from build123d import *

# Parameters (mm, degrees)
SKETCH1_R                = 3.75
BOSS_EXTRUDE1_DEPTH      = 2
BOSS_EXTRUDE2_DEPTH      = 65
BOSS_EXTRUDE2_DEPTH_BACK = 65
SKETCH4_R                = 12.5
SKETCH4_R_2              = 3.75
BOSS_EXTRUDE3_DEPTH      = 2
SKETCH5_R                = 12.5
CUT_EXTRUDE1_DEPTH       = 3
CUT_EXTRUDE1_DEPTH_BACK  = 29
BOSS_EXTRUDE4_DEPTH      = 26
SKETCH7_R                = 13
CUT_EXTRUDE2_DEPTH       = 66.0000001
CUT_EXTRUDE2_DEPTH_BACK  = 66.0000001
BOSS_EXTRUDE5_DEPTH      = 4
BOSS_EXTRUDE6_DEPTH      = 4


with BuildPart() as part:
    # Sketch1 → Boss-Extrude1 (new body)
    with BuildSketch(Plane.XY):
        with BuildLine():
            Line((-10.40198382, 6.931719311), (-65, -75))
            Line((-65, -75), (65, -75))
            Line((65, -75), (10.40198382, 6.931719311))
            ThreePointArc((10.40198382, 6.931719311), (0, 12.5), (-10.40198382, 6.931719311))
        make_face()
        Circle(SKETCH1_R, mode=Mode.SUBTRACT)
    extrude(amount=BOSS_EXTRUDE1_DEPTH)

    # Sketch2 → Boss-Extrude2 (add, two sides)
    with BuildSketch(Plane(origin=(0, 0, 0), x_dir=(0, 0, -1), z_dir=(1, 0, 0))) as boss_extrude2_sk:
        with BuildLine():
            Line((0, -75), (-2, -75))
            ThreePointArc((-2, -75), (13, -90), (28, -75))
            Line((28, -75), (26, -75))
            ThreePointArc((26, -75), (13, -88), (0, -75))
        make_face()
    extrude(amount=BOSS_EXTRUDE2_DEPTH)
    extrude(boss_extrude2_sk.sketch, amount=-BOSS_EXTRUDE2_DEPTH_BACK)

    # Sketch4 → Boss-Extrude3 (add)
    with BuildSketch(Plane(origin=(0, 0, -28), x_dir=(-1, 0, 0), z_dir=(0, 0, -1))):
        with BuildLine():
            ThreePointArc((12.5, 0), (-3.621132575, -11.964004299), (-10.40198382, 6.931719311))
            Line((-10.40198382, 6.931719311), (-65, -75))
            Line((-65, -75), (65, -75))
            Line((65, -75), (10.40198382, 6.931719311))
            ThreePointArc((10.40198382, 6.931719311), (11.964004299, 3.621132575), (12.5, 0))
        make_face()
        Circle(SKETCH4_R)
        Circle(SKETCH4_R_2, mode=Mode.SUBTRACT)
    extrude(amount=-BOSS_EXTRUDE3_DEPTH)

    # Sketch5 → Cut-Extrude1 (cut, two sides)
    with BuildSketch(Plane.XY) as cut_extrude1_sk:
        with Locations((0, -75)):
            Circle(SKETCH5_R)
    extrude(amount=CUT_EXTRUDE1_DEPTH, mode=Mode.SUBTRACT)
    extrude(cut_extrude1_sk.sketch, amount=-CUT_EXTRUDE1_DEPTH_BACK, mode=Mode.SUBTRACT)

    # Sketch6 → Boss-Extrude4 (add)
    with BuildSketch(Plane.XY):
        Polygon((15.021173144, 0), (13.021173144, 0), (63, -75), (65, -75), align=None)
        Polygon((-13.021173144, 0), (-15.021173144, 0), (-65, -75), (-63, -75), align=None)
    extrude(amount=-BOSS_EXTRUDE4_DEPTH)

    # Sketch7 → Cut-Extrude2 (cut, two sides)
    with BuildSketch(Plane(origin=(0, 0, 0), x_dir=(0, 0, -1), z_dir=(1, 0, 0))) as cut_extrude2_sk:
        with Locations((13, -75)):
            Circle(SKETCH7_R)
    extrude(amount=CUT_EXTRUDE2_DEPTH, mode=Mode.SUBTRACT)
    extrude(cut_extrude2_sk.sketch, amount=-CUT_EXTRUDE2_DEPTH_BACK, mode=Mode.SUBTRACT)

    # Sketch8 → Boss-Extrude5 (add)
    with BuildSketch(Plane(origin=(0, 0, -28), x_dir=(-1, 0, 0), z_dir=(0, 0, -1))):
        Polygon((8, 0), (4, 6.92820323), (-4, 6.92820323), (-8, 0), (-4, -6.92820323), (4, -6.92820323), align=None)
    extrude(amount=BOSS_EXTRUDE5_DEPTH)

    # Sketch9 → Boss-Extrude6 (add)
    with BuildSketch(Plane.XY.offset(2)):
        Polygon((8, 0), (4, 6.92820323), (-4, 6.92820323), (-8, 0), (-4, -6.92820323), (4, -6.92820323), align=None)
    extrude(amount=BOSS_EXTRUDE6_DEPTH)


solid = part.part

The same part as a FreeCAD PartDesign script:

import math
import FreeCAD as App
import Part
import Sketcher
Q = App.Units.Quantity

doc = App.newDocument("Part")
body = doc.addObject("PartDesign::Body", "Body")

# Sketch on XY plane
sketch1 = body.newObject("Sketcher::SketchObject", "Sketch")
sketch1.AttachmentSupport = (doc.getObject("XY_Plane"), [""])
sketch1.MapMode = "FlatFace"
sketch1.addGeometry(Part.LineSegment(App.Vector(-10.4, 6.9, 0), App.Vector(-65, -75, 0)), False)
sketch1.addGeometry(Part.LineSegment(App.Vector(-65, -75, 0), App.Vector(65, -75, 0)), False)
sketch1.addGeometry(Part.LineSegment(App.Vector(65, -75, 0), App.Vector(10.4, 6.9, 0)), False)
sketch1.addGeometry(Part.ArcOfCircle(Part.Circle(App.Vector(0, 0, 0), App.Vector(0, 0, 1), 12.5), math.radians(34), math.radians(146)), False)
sketch1.addGeometry(Part.Circle(App.Vector(0, 0, 0), App.Vector(0, 0, 1), 3.8), False)
sketch1.addConstraint(Sketcher.Constraint("Coincident", 0, 2, 1, 1))
sketch1.addConstraint(Sketcher.Constraint("Coincident", 1, 2, 2, 1))
sketch1.addConstraint(Sketcher.Constraint("Tangent", 2, 2, 3, 1))
sketch1.addConstraint(Sketcher.Constraint("Tangent", 3, 2, 0, 1))
sketch1.addConstraint(Sketcher.Constraint("Horizontal", 1))
sketch1.addConstraint(Sketcher.Constraint("Coincident", 3, 3, -1, 1))
sketch1.addConstraint(Sketcher.Constraint("Coincident", 4, 3, -1, 1))
sketch1.addConstraint(Sketcher.Constraint("Horizontal", 2, 2, 3, 2))
sketch1.addConstraint(Sketcher.Constraint("Diameter", 4, 7.5))
sketch1.addConstraint(Sketcher.Constraint("Radius", 3, 12.5))
sketch1.addConstraint(Sketcher.Constraint("DistanceX", 1, 1, 1, 2, 130.0))
sketch1.addConstraint(Sketcher.Constraint("DistanceY", 0, 2, -1, 1, 75.0))
pad1 = body.newObject("PartDesign::Pad", "Pad")
pad1.Profile = sketch1
pad1.Length = 2

# Sketch on YZ plane
sketch2 = body.newObject("Sketcher::SketchObject", "Sketch001")
sketch2.AttachmentSupport = (doc.getObject("YZ_Plane"), [""])
sketch2.MapMode = "FlatFace"
sketch2.addGeometry(Part.LineSegment(App.Vector(-75, 0, 0), App.Vector(-75, 2, 0)), False)
sketch2.addGeometry(Part.ArcOfCircle(Part.Circle(App.Vector(-75, -13, 0), App.Vector(0, 0, 1), 15), math.radians(90), math.radians(270)), False)
sketch2.addGeometry(Part.LineSegment(App.Vector(-75, -28, 0), App.Vector(-75, -26, 0)), False)
sketch2.addGeometry(Part.ArcOfCircle(Part.Circle(App.Vector(-75, -13, 0), App.Vector(0, 0, 1), 13), math.radians(90), math.radians(270)), False)
sketch2.addConstraint(Sketcher.Constraint("Coincident", 0, 2, 1, 1))
sketch2.addConstraint(Sketcher.Constraint("Coincident", 1, 2, 2, 1))
sketch2.addConstraint(Sketcher.Constraint("Coincident", 2, 2, 3, 2))
sketch2.addConstraint(Sketcher.Constraint("Coincident", 3, 1, 0, 1))
sketch2.addConstraint(Sketcher.Constraint("Vertical", 0))
sketch2.addConstraint(Sketcher.Constraint("Vertical", 2))
sketch2.addConstraint(Sketcher.Constraint("Coincident", 3, 3, 1, 3))
sketch2.addConstraint(Sketcher.Constraint("PointOnObject", 3, 1, -1))
sketch2.addConstraint(Sketcher.Constraint("Vertical", 3, 3, 0, 2))
sketch2.addConstraint(Sketcher.Constraint("Vertical", 0, 2, 1, 2))
sketch2.addConstraint(Sketcher.Constraint("Radius", 1, 15.0))
sketch2.addConstraint(Sketcher.Constraint("Radius", 3, 13.0))
sketch2.addConstraint(Sketcher.Constraint("DistanceX", 1, 3, -1, 1, 75.0))
pad2 = body.newObject("PartDesign::Pad", "Pad001")
pad2.Profile = sketch2
pad2.Type = "TwoLengths"
pad2.Length = 65
pad2.Length2 = 65

# Sketch on XY plane
sketch3 = body.newObject("Sketcher::SketchObject", "Sketch002")
sketch3.AttachmentSupport = (doc.getObject("XY_Plane"), [""])
sketch3.MapMode = "FlatFace"
sketch3.AttachmentOffset = App.Placement(App.Vector(0, 0, -28), App.Rotation())
sketch3.addGeometry(Part.LineSegment(App.Vector(10.4, 6.9, 0), App.Vector(65, -75, 0)), False)
sketch3.addGeometry(Part.LineSegment(App.Vector(65, -75, 0), App.Vector(-65, -75, 0)), False)
sketch3.addGeometry(Part.LineSegment(App.Vector(-65, -75, 0), App.Vector(-10.4, 6.9, 0)), False)
sketch3.addGeometry(Part.ArcOfCircle(Part.Circle(App.Vector(0, 0, 0), App.Vector(0, 0, 1), 12.5), math.radians(34), math.radians(146)), False)
sketch3.addGeometry(Part.Circle(App.Vector(0, 0, 0), App.Vector(0, 0, 1), 3.8), False)
sketch3.addConstraint(Sketcher.Constraint("Coincident", 0, 2, 1, 1))
sketch3.addConstraint(Sketcher.Constraint("Coincident", 1, 2, 2, 1))
sketch3.addConstraint(Sketcher.Constraint("Tangent", 2, 2, 3, 2))
sketch3.addConstraint(Sketcher.Constraint("Tangent", 3, 1, 0, 1))
sketch3.addConstraint(Sketcher.Constraint("Horizontal", 1))
sketch3.addConstraint(Sketcher.Constraint("Coincident", 3, 3, -1, 1))
sketch3.addConstraint(Sketcher.Constraint("Coincident", 4, 3, -1, 1))
sketch3.addConstraint(Sketcher.Constraint("Horizontal", 2, 2, 3, 1))
sketch3.addConstraint(Sketcher.Constraint("Diameter", 4, 7.5))
sketch3.addConstraint(Sketcher.Constraint("Radius", 3, 12.5))
sketch3.addConstraint(Sketcher.Constraint("DistanceX", 1, 2, 1, 1, 130.0))
sketch3.addConstraint(Sketcher.Constraint("DistanceY", 0, 2, -1, 1, 75.0))
pad3 = body.newObject("PartDesign::Pad", "Pad002")
pad3.Profile = sketch3
pad3.Length = 2

# Sketch on XY plane
sketch4 = body.newObject("Sketcher::SketchObject", "Sketch003")
sketch4.AttachmentSupport = (doc.getObject("XY_Plane"), [""])
sketch4.MapMode = "FlatFace"
sketch4.addGeometry(Part.Circle(App.Vector(0, -75, 0), App.Vector(0, 0, 1), 12), False)
sketch4.addConstraint(Sketcher.Constraint("PointOnObject", 0, 3, -2))
sketch4.addConstraint(Sketcher.Constraint("Diameter", 0, 25.0))
sketch4.addConstraint(Sketcher.Constraint("DistanceY", 0, 3, -1, 1, 75.0))
pocket1 = body.newObject("PartDesign::Pocket", "Pocket")
pocket1.Profile = sketch4
pocket1.Type = "ThroughAll"
pocket1.Midplane = True

# Sketch on XY plane
sketch5 = body.newObject("Sketcher::SketchObject", "Sketch004")
sketch5.AttachmentSupport = (doc.getObject("XY_Plane"), [""])
sketch5.MapMode = "FlatFace"
sketch5.addGeometry(Part.LineSegment(App.Vector(15, 0, 0), App.Vector(13, 0, 0)), False)
sketch5.addGeometry(Part.LineSegment(App.Vector(13, 0, 0), App.Vector(63, -75, 0)), False)
sketch5.addGeometry(Part.LineSegment(App.Vector(63, -75, 0), App.Vector(65, -75, 0)), False)
sketch5.addGeometry(Part.LineSegment(App.Vector(65, -75, 0), App.Vector(15, 0, 0)), False)
sketch5.addGeometry(Part.LineSegment(App.Vector(-13, 0, 0), App.Vector(-15, 0, 0)), False)
sketch5.addGeometry(Part.LineSegment(App.Vector(-15, 0, 0), App.Vector(-65, -75, 0)), False)
sketch5.addGeometry(Part.LineSegment(App.Vector(-65, -75, 0), App.Vector(-63, -75, 0)), False)
sketch5.addGeometry(Part.LineSegment(App.Vector(-63, -75, 0), App.Vector(-13, 0, 0)), False)
sketch5.addConstraint(Sketcher.Constraint("Coincident", 0, 2, 1, 1))
sketch5.addConstraint(Sketcher.Constraint("Coincident", 1, 2, 2, 1))
sketch5.addConstraint(Sketcher.Constraint("Coincident", 2, 2, 3, 1))
sketch5.addConstraint(Sketcher.Constraint("Coincident", 3, 2, 0, 1))
sketch5.addConstraint(Sketcher.Constraint("Coincident", 4, 2, 5, 1))
sketch5.addConstraint(Sketcher.Constraint("Coincident", 5, 2, 6, 1))
sketch5.addConstraint(Sketcher.Constraint("Coincident", 6, 2, 7, 1))
sketch5.addConstraint(Sketcher.Constraint("Coincident", 7, 2, 4, 1))
sketch5.addConstraint(Sketcher.Constraint("Horizontal", 0))
sketch5.addConstraint(Sketcher.Constraint("Horizontal", 2))
sketch5.addConstraint(Sketcher.Constraint("Horizontal", 4))
sketch5.addConstraint(Sketcher.Constraint("Horizontal", 6))
sketch5.addConstraint(Sketcher.Constraint("Symmetric", 3, 2, 4, 2, -1, 1))
sketch5.addConstraint(Sketcher.Constraint("Symmetric", 2, 2, 5, 2, -2))
sketch5.addConstraint(Sketcher.Constraint("Symmetric", 0, 2, 7, 2, -2))
sketch5.addConstraint(Sketcher.Constraint("Parallel", 1, 3))
sketch5.addConstraint(Sketcher.Constraint("Parallel", 5, 7))
sketch5.addConstraint(Sketcher.Constraint("DistanceX", 0, 2, 0, 1, 2.0))
sketch5.addConstraint(Sketcher.Constraint("DistanceX", -1, 1, 1, 2, 63.0))
sketch5.addConstraint(Sketcher.Constraint("DistanceY", 1, 2, -1, 1, 75.0))
sketch5.addConstraint(Sketcher.Constraint("Distance", 1, 90.127039))
pad4 = body.newObject("PartDesign::Pad", "Pad003")
pad4.Profile = sketch5
pad4.Length = 26
pad4.Reversed = True

# Sketch on YZ plane
sketch6 = body.newObject("Sketcher::SketchObject", "Sketch005")
sketch6.AttachmentSupport = (doc.getObject("YZ_Plane"), [""])
sketch6.MapMode = "FlatFace"
sketch6.addGeometry(Part.Circle(App.Vector(-75, -13, 0), App.Vector(0, 0, 1), 13), False)
sketch6.addConstraint(Sketcher.Constraint("Diameter", 0, 26.0))
sketch6.addConstraint(Sketcher.Constraint("DistanceX", 0, 3, -1, 1, 75.0))
sketch6.addConstraint(Sketcher.Constraint("DistanceY", 0, 3, -1, 1, 13.0))
pocket2 = body.newObject("PartDesign::Pocket", "Pocket001")
pocket2.Profile = sketch6
pocket2.Type = "ThroughAll"
pocket2.Midplane = True

# Sketch on XY plane
sketch7 = body.newObject("Sketcher::SketchObject", "Sketch006")
sketch7.AttachmentSupport = (doc.getObject("XY_Plane"), [""])
sketch7.MapMode = "FlatFace"
sketch7.AttachmentOffset = App.Placement(App.Vector(0, 0, -28), App.Rotation())
sketch7.addGeometry(Part.LineSegment(App.Vector(-8, 0, 0), App.Vector(-4, 7, 0)), False)
sketch7.addGeometry(Part.LineSegment(App.Vector(-4, 7, 0), App.Vector(4, 7, 0)), False)
sketch7.addGeometry(Part.LineSegment(App.Vector(4, 7, 0), App.Vector(8, 0, 0)), False)
sketch7.addGeometry(Part.LineSegment(App.Vector(8, 0, 0), App.Vector(4, -7, 0)), False)
sketch7.addGeometry(Part.LineSegment(App.Vector(4, -7, 0), App.Vector(-4, -7, 0)), False)
sketch7.addGeometry(Part.LineSegment(App.Vector(-4, -7, 0), App.Vector(-8, 0, 0)), False)
sketch7.addConstraint(Sketcher.Constraint("Coincident", 0, 2, 1, 1))
sketch7.addConstraint(Sketcher.Constraint("Coincident", 1, 2, 2, 1))
sketch7.addConstraint(Sketcher.Constraint("Coincident", 2, 2, 3, 1))
sketch7.addConstraint(Sketcher.Constraint("Coincident", 3, 2, 4, 1))
sketch7.addConstraint(Sketcher.Constraint("Coincident", 4, 2, 5, 1))
sketch7.addConstraint(Sketcher.Constraint("Coincident", 5, 2, 0, 1))
sketch7.addConstraint(Sketcher.Constraint("Horizontal", 1))
sketch7.addConstraint(Sketcher.Constraint("Horizontal", 4))
sketch7.addConstraint(Sketcher.Constraint("Symmetric", 0, 2, 3, 2, -1, 1))
sketch7.addConstraint(Sketcher.Constraint("Symmetric", 2, 2, 5, 2, -1, 1))
sketch7.addConstraint(Sketcher.Constraint("PointOnObject", 2, 2, -1))
sketch7.addConstraint(Sketcher.Constraint("Parallel", 2, 5))
sketch7.addConstraint(Sketcher.Constraint("Vertical", 1, 2, 3, 2))
sketch7.addConstraint(Sketcher.Constraint("DistanceX", 1, 1, 1, 2, 8.0))
sketch7.addConstraint(Sketcher.Constraint("Angle", 0, Q("60 deg")))
sketch7.addConstraint(Sketcher.Constraint("Distance", 0, 8.0))
pad5 = body.newObject("PartDesign::Pad", "Pad004")
pad5.Profile = sketch7
pad5.Length = 4
pad5.Reversed = True

# Sketch on XY plane
sketch8 = body.newObject("Sketcher::SketchObject", "Sketch007")
sketch8.AttachmentSupport = (doc.getObject("XY_Plane"), [""])
sketch8.MapMode = "FlatFace"
sketch8.AttachmentOffset = App.Placement(App.Vector(0, 0, 2), App.Rotation())
sketch8.addGeometry(Part.LineSegment(App.Vector(8, 0, 0), App.Vector(4, 7, 0)), False)
sketch8.addGeometry(Part.LineSegment(App.Vector(4, 7, 0), App.Vector(-4, 7, 0)), False)
sketch8.addGeometry(Part.LineSegment(App.Vector(-4, 7, 0), App.Vector(-8, 0, 0)), False)
sketch8.addGeometry(Part.LineSegment(App.Vector(-8, 0, 0), App.Vector(-4, -7, 0)), False)
sketch8.addGeometry(Part.LineSegment(App.Vector(-4, -7, 0), App.Vector(4, -7, 0)), False)
sketch8.addGeometry(Part.LineSegment(App.Vector(4, -7, 0), App.Vector(8, 0, 0)), False)
sketch8.addConstraint(Sketcher.Constraint("Coincident", 0, 2, 1, 1))
sketch8.addConstraint(Sketcher.Constraint("Coincident", 1, 2, 2, 1))
sketch8.addConstraint(Sketcher.Constraint("Coincident", 2, 2, 3, 1))
sketch8.addConstraint(Sketcher.Constraint("Coincident", 3, 2, 4, 1))
sketch8.addConstraint(Sketcher.Constraint("Coincident", 4, 2, 5, 1))
sketch8.addConstraint(Sketcher.Constraint("Coincident", 5, 2, 0, 1))
sketch8.addConstraint(Sketcher.Constraint("Horizontal", 1))
sketch8.addConstraint(Sketcher.Constraint("Horizontal", 4))
sketch8.addConstraint(Sketcher.Constraint("Symmetric", 0, 2, 3, 2, -1, 1))
sketch8.addConstraint(Sketcher.Constraint("Symmetric", 2, 2, 5, 2, -1, 1))
sketch8.addConstraint(Sketcher.Constraint("PointOnObject", 2, 2, -1))
sketch8.addConstraint(Sketcher.Constraint("Parallel", 2, 5))
sketch8.addConstraint(Sketcher.Constraint("Vertical", 1, 2, 3, 2))
sketch8.addConstraint(Sketcher.Constraint("DistanceX", 1, 2, 1, 1, 8.0))
sketch8.addConstraint(Sketcher.Constraint("Angle", 0, Q("120 deg")))
sketch8.addConstraint(Sketcher.Constraint("Distance", 0, 8.0))
pad6 = body.newObject("PartDesign::Pad", "Pad005")
pad6.Profile = sketch8
pad6.Length = 4

doc.recompute()
